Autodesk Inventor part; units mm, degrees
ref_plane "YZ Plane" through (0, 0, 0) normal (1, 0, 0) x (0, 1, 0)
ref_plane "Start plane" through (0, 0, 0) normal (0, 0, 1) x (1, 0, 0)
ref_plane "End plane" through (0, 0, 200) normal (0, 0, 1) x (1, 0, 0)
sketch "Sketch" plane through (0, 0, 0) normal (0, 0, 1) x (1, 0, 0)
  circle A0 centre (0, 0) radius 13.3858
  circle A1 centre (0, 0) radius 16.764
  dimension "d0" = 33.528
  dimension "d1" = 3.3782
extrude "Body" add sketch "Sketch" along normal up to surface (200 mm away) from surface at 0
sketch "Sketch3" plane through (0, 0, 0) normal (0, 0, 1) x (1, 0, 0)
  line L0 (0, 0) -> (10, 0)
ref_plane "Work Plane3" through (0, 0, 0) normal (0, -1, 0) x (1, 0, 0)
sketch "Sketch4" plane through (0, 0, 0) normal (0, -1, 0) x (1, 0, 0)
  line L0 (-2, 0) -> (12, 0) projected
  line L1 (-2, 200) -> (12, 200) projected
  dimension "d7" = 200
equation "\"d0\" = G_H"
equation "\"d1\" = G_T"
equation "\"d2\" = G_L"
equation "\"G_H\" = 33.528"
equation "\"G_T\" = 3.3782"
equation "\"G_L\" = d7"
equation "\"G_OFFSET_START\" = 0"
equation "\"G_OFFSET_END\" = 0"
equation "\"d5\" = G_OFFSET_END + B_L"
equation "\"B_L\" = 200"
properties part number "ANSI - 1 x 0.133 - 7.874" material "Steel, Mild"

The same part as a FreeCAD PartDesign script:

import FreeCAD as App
import Part
import Sketcher

V = App.Vector
Q = App.Units.Quantity

doc = App.newDocument("Part")
body = doc.addObject("PartDesign::Body", "Body")

sketch1 = body.newObject("Sketcher::SketchObject", "Sketch")
sketch1.AttachmentSupport = (doc.getObject("XY_Plane"), [""])
sketch1.MapMode = "FlatFace"
sketch1.addGeometry(Part.Circle(V(0, 0, 0), V(0, 0, 1), 16.764), False)
sketch1.addGeometry(Part.Circle(V(0, 0, 0), V(0, 0, 1), 13.3858), False)
sketch1.addConstraint(Sketcher.Constraint("Coincident", 0, 3, -1, 1))
sketch1.addConstraint(Sketcher.Constraint("Coincident", 1, 3, -1, 1))
sketch1.addConstraint(Sketcher.Constraint("Diameter", 0, Q("1.32 in")))
sketch1.addConstraint(Sketcher.Constraint("Diameter", 1, Q("1.054 in")))
pad1 = body.newObject("PartDesign::Pad", "Pad")
pad1.Profile = sketch1
pad1.Length = 200

doc.recompute()
